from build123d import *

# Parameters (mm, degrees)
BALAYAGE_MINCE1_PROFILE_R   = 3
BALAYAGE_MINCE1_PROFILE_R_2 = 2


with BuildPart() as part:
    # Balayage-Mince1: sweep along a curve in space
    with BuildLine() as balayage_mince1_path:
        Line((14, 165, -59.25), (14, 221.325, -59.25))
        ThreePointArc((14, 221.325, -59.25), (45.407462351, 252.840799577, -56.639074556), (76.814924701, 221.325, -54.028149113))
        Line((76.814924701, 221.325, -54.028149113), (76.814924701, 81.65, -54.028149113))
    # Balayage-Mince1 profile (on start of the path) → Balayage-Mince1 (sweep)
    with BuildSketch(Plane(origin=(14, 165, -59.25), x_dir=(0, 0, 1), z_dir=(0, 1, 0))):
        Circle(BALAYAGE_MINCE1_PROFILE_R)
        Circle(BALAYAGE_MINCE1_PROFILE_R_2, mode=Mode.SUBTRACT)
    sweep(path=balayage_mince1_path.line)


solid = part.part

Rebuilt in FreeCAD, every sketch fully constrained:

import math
import FreeCAD as App
import Part
import Sketcher
from FreeCAD import Vector
Q = App.Units.Quantity

doc = App.newDocument("Part")
body = doc.addObject("PartDesign::Body", "Body")

# Sketch on XZ plane
sketch1 = body.newObject("Sketcher::SketchObject", "Sketch")
sketch1.AttachmentSupport = (doc.getObject("XZ_Plane"), [""])
sketch1.MapMode = "FlatFace"
sketch1.AttachmentOffset = App.Placement(Vector(0, 0, -165), App.Rotation())
sketch1.addGeometry([
    Part.Circle(Vector(14, -59.2, 0), Vector(0, 0, 1), 3),
    Part.Circle(Vector(14, -59.2, 0), Vector(0, 0, 1), 2),
], False)
sketch1.addConstraint([
    Sketcher.Constraint("Coincident", 1, 3, 0, 3),
    Sketcher.Constraint("Diameter", 0, Q("6 mm")),
    Sketcher.Constraint("Diameter", 1, Q("4 mm")),
    Sketcher.Constraint("DistanceX", -1, 1, 0, 3, Q("14 mm")),
    Sketcher.Constraint("DistanceY", 0, 3, -1, 1, Q("59.25 mm")),
])

# Sketch on an angled plane
sketch2 = body.newObject("Sketcher::SketchObject", "Sketch001")
sketch2.Placement = App.Placement(Vector(4.987777, 0, -59.999193), App.Rotation(Vector(0.996562447, 0, 0.082844969), Vector(0, 1, 0), Vector(-0.082844969, 0, 0.996562447), "ZXY"))
sketch2.addGeometry([
    Part.LineSegment(Vector(9, 165, 0), Vector(9, 221, 0)),
    Part.ArcOfCircle(Part.Circle(Vector(41, 221, 0), Vector(0, 0, 1), 32), math.radians(0), math.radians(180)),
    Part.LineSegment(Vector(72, 221, 0), Vector(72, 82, 0)),
], False)
sketch2.addConstraint([
    Sketcher.Constraint("Tangent", 0, 2, 1, 2),
    Sketcher.Constraint("Tangent", 1, 1, 2, 1),
    Sketcher.Constraint("Vertical", 0),
    Sketcher.Constraint("Vertical", 2),
    Sketcher.Constraint("DistanceY", -1, 1, 0, 1, Q("165 mm")),
    Sketcher.Constraint("Radius", 1, Q("31.5158 mm")),
    Sketcher.Constraint("DistanceY", 0, 1, 0, 2, Q("56.325 mm")),
    Sketcher.Constraint("DistanceY", 2, 2, 2, 1, Q("139.675 mm")),
    Sketcher.Constraint("DistanceX", -1, 1, 1, 3, Q("40.559109 mm")),
])
doc.recompute()

additivepipe = body.newObject("PartDesign::AdditivePipe", "AdditivePipe")
additivepipe.Profile = sketch1
additivepipe.Spine = (sketch2, ["Edge1", "Edge2", "Edge3"])

doc.recompute()
